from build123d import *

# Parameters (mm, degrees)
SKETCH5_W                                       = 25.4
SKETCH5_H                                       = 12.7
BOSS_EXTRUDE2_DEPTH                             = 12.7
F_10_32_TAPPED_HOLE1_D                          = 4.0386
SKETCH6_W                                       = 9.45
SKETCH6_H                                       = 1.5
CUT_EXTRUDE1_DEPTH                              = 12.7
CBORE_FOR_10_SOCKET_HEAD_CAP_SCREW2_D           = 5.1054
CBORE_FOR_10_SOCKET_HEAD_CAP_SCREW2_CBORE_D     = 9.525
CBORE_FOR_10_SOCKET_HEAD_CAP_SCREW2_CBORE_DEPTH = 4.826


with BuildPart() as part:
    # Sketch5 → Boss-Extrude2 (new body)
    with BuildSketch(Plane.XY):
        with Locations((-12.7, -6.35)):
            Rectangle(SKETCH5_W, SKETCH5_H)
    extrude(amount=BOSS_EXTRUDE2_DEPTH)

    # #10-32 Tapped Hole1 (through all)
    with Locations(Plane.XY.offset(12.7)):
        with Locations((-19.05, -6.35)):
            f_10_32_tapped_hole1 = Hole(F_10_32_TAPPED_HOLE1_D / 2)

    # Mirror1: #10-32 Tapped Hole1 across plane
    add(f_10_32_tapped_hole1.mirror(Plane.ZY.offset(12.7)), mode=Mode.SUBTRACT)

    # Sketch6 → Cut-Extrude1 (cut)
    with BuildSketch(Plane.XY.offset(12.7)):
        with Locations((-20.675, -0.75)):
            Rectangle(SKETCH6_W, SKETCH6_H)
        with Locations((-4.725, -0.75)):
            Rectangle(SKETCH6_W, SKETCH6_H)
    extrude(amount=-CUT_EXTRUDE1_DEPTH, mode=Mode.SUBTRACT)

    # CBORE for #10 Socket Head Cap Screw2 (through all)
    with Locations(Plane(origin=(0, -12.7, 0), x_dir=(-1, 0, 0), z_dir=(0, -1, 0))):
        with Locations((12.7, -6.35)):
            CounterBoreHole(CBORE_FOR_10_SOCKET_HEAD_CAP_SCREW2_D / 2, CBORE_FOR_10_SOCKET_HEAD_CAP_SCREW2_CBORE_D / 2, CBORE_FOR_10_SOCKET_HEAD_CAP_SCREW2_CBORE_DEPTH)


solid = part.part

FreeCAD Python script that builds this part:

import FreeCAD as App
import Part
import Sketcher
Q = App.Units.Quantity


def add_polygon(sketch, points):
    """Adds a closed chain of lines whose ends are joined by coincident constraints."""
    first, n = sketch.GeometryCount, len(points)
    for a, b in zip(points, points[1:] + points[:1]):
        sketch.addGeometry(Part.LineSegment(App.Vector(*a, 0), App.Vector(*b, 0)), False)
    for i in range(n):
        sketch.addConstraint(Sketcher.Constraint("Coincident", first + i, 2, first + (i + 1) % n, 1))

doc = App.newDocument("Part")
params = doc.addObject("Spreadsheet::Sheet", "Params")
for row, (alias, value) in enumerate([
    ("sketch1_width", "1 in"),
    ("sketch1_height", "0.5 in"),
    ("pad1_length", "0.5 in"),
    ("sketch2_diameter", "0.159 in"),
    ("hole_diameter", "0.159 in"),
    ("pocket1_length", "0.5 in"),
    ("sketch4_diameter", "0.201 in"),
    ("hole2_diameter", "0.201 in"),
    ("hole2_cbore_diameter", "0.375 in"),
    ("hole2_cbore_depth", "0.19 in"),
], start=1):
    params.set(f"A{row}", alias)
    params.set(f"B{row}", "=" + value)
    params.setAlias(f"B{row}", alias)

body = doc.addObject("PartDesign::Body", "Body")

# Sketch on XY plane
sketch1 = doc.addObject("Sketcher::SketchObject", "Sketch")
body.addObject(sketch1)
sketch1.AttachmentSupport = (doc.XY_Plane, [""])
sketch1.MapMode = "FlatFace"
add_polygon(sketch1, [(-25, 0), (-25, -13), (0, -13), (0, 0)])  # lines 0-3
sketch1.addConstraint([
    Sketcher.Constraint("Vertical", 0),
    Sketcher.Constraint("Horizontal", 1),
    Sketcher.Constraint("Vertical", 2),
    Sketcher.Constraint("Horizontal", 3),
    Sketcher.Constraint("Coincident", 2, 2, -1, 1),
    Sketcher.Constraint("DistanceX", 1, 1, 1, 2, Q("1 in")),
    Sketcher.Constraint("DistanceY", 0, 2, 0, 1, Q("0.5 in")),
])
sketch1.setExpression("Constraints[9]", "Params.sketch1_width")
sketch1.setExpression("Constraints[10]", "Params.sketch1_height")
pad1 = doc.addObject("PartDesign::Pad", "Pad")
body.addObject(pad1)
pad1.Profile = sketch1
pad1.setExpression("Length", "Params.pad1_length")

# Sketch on XY plane
sketch2 = doc.addObject("Sketcher::SketchObject", "Sketch001")
body.addObject(sketch2)
sketch2.AttachmentSupport = (doc.XY_Plane, [""])
sketch2.MapMode = "FlatFace"
sketch2.AttachmentOffset = App.Placement(App.Vector(0, 0, 0.5 * 25.4), App.Rotation())
sketch2.addGeometry(Part.Circle(App.Vector(-19.1, -6.3, 0), App.Vector(0, 0, 1), 2), False)
sketch2.addConstraint([
    Sketcher.Constraint("Diameter", 0, Q("0.159 in")),
    Sketcher.Constraint("DistanceX", 0, 3, -1, 1, Q("0.75 in")),
    Sketcher.Constraint("DistanceY", 0, 3, -1, 1, Q("0.25 in")),
])
sketch2.setExpression("Constraints[0]", "Params.sketch2_diameter")
doc.recompute()
hole = doc.addObject("PartDesign::Hole", "Hole")
body.addObject(hole)
hole.Profile = sketch2
hole.ThreadType = "None"
hole.setExpression("Diameter", "Params.hole_diameter")
hole.DepthType = "ThroughAll"
doc.recompute()

datumplane = doc.addObject("PartDesign::Plane", "DatumPlane")
body.addObject(datumplane)
datumplane.AttachmentSupport = (doc.YZ_Plane, [""])
datumplane.MapMode = "FlatFace"
datumplane.AttachmentOffset = App.Placement(App.Vector(0, 0, -0.5 * 25.4), App.Rotation())
mirrored = doc.addObject("PartDesign::Mirrored", "Mirrored")
body.addObject(mirrored)
mirrored.Originals = [hole]
mirrored.MirrorPlane = (datumplane, [""])
body.Tip = mirrored

# Sketch on XY plane
sketch3 = doc.addObject("Sketcher::SketchObject", "Sketch002")
body.addObject(sketch3)
sketch3.AttachmentSupport = (doc.XY_Plane, [""])
sketch3.MapMode = "FlatFace"
sketch3.AttachmentOffset = App.Placement(App.Vector(0, 0, 0.5 * 25.4), App.Rotation())
add_polygon(sketch3, [(-25.4, 0), (-25.4, -1.5), (-15.9, -1.5), (-15.9, 0)])  # lines 0-3
add_polygon(sketch3, [(-9.4, 0), (-9.4, -1.5), (0, -1.5), (0, 0)])  # lines 4-7
sketch3.addConstraint([
    Sketcher.Constraint("Vertical", 0),
    Sketcher.Constraint("Horizontal", 1),
    Sketcher.Constraint("Vertical", 2),
    Sketcher.Constraint("Horizontal", 3),
    Sketcher.Constraint("Vertical", 4),
    Sketcher.Constraint("Horizontal", 5),
    Sketcher.Constraint("Vertical", 6),
    Sketcher.Constraint("Horizontal", 7),
    Sketcher.Constraint("Coincident", 6, 2, -1, 1),
    Sketcher.Constraint("PointOnObject", 2, 2, -1),
    Sketcher.Constraint("Horizontal", 1, 2, 4, 2),
    Sketcher.Constraint("Equal", 3, 5),
    Sketcher.Constraint("DistanceX", 0, 2, -1, 1, Q("1 in")),
    Sketcher.Constraint("DistanceX", 1, 1, 1, 2, Q("9.45 mm")),
    Sketcher.Constraint("DistanceY", 0, 2, 0, 1, Q("1.5 mm")),
])
pocket1 = doc.addObject("PartDesign::Pocket", "Pocket")
body.addObject(pocket1)
pocket1.Profile = sketch3
pocket1.setExpression("Length", "Params.pocket1_length")

# Sketch on XZ plane
sketch4 = doc.addObject("Sketcher::SketchObject", "Sketch003")
body.addObject(sketch4)
sketch4.AttachmentSupport = (doc.XZ_Plane, [""])
sketch4.MapMode = "FlatFace"
sketch4.AttachmentOffset = App.Placement(App.Vector(0, 0, 0.5 * 25.4), App.Rotation())
sketch4.addGeometry(Part.Circle(App.Vector(-12.7, 6.3, 0), App.Vector(0, 0, 1), 2.6), False)
sketch4.addConstraint([
    Sketcher.Constraint("Diameter", 0, Q("0.201 in")),
    Sketcher.Constraint("DistanceX", 0, 3, -1, 1, Q("0.5 in")),
    Sketcher.Constraint("DistanceY", -1, 1, 0, 3, Q("0.25 in")),
])
sketch4.setExpression("Constraints[0]", "Params.sketch4_diameter")
doc.recompute()
hole2 = doc.addObject("PartDesign::Hole", "Hole001")
body.addObject(hole2)
hole2.Profile = sketch4
hole2.ThreadType = "None"
hole2.setExpression("Diameter", "Params.hole2_diameter")
hole2.DepthType = "ThroughAll"
hole2.HoleCutType = "Counterbore"
hole2.setExpression("HoleCutDiameter", "Params.hole2_cbore_diameter")
hole2.setExpression("HoleCutDepth", "Params.hole2_cbore_depth")

doc.recompute()
